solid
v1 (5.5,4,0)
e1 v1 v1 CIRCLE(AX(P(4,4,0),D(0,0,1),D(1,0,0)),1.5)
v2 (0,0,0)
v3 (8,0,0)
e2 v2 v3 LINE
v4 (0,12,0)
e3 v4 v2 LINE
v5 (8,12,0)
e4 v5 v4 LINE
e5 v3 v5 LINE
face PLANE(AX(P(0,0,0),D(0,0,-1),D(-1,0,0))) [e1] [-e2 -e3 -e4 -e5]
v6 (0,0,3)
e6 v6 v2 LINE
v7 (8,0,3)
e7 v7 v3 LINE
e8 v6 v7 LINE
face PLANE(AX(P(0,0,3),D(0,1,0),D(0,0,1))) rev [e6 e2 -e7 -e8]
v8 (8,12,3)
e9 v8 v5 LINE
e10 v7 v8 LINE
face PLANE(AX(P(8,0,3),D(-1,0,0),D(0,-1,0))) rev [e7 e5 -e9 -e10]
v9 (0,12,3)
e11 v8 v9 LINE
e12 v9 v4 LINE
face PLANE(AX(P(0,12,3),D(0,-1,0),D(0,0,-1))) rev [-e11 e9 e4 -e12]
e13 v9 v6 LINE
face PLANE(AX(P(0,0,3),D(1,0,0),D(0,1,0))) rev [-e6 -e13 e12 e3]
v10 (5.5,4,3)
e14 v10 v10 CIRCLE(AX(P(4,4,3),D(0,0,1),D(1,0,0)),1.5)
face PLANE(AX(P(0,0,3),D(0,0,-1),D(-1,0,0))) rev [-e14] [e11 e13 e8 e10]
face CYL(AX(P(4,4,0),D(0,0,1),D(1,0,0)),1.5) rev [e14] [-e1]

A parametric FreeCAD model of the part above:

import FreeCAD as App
import Part
import Sketcher

doc = App.newDocument("Part")
body = doc.addObject("PartDesign::Body", "Body")

sketch1 = doc.addObject("Sketcher::SketchObject", "Sketch")
body.addObject(sketch1)
sketch1.AttachmentSupport = (doc.XY_Plane, [""])
sketch1.MapMode = "FlatFace"
sketch1.addGeometry([
    Part.LineSegment(App.Vector(0, 12, 0), App.Vector(0, 0, 0)),
    Part.LineSegment(App.Vector(0, 0, 0), App.Vector(8, 0, 0)),
    Part.LineSegment(App.Vector(8, 0, 0), App.Vector(8, 12, 0)),
    Part.LineSegment(App.Vector(8, 12, 0), App.Vector(0, 12, 0)),
], False)
sketch1.addConstraint([
    Sketcher.Constraint("Coincident", 0, 2, 1, 1),
    Sketcher.Constraint("Coincident", 1, 2, 2, 1),
    Sketcher.Constraint("Coincident", 2, 2, 3, 1),
    Sketcher.Constraint("Coincident", 3, 2, 0, 1),
    Sketcher.Constraint("Vertical", 0),
    Sketcher.Constraint("Horizontal", 1),
    Sketcher.Constraint("Vertical", 2),
    Sketcher.Constraint("Horizontal", 3),
    Sketcher.Constraint("Coincident", 0, 2, -1, 1),
    Sketcher.Constraint("DistanceX", 1, 1, 1, 2, 8.0),
    Sketcher.Constraint("DistanceY", 0, 2, 0, 1, 12.0),
])
pad1 = doc.addObject("PartDesign::Pad", "Pad")
body.addObject(pad1)
pad1.Profile = sketch1
pad1.Length = 3

sketch2 = doc.addObject("Sketcher::SketchObject", "Sketch001")
body.addObject(sketch2)
sketch2.AttachmentSupport = (doc.XY_Plane, [""])
sketch2.MapMode = "FlatFace"
sketch2.AttachmentOffset = App.Placement(App.Vector(0, 0, 3), App.Rotation())
sketch2.addGeometry(Part.Circle(App.Vector(4, 4, 0), App.Vector(0, 0, 1), 1.5), False)
sketch2.addConstraint([
    Sketcher.Constraint("Diameter", 0, 3.0),
    Sketcher.Constraint("DistanceX", -1, 1, 0, 3, 4.0),
    Sketcher.Constraint("DistanceY", -1, 1, 0, 3, 4.0),
])
pocket1 = doc.addObject("PartDesign::Pocket", "Pocket")
body.addObject(pocket1)
pocket1.Profile = sketch2
pocket1.Type = "ThroughAll"

doc.recompute()
